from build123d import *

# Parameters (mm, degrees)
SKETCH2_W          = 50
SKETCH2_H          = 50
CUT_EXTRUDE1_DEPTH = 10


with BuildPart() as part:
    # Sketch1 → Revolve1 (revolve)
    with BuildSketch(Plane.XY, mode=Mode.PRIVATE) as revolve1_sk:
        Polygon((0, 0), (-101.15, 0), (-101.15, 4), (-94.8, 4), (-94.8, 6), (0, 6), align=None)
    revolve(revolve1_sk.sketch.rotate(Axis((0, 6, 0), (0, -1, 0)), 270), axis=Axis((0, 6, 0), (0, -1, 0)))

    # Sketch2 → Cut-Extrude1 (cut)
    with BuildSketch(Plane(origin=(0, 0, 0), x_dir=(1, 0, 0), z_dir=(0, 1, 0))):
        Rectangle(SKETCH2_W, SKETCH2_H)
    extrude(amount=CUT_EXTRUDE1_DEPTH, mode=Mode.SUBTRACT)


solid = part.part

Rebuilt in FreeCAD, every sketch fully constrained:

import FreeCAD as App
import Part
import Sketcher
from FreeCAD import Vector


def add_polygon(sketch, points):
    """Adds a closed chain of lines whose ends are joined by coincident constraints."""
    first, n = sketch.GeometryCount, len(points)
    for a, b in zip(points, points[1:] + points[:1]):
        sketch.addGeometry(Part.LineSegment(App.Vector(*a, 0), App.Vector(*b, 0)), False)
    for i in range(n):
        sketch.addConstraint(Sketcher.Constraint("Coincident", first + i, 2, first + (i + 1) % n, 1))

doc = App.newDocument("Part")
body = doc.addObject("PartDesign::Body", "Body")

# Sketch on XY plane
sketch1 = body.newObject("Sketcher::SketchObject", "Sketch")
sketch1.AttachmentSupport = (doc.getObject("XY_Plane"), [""])
sketch1.MapMode = "FlatFace"
add_polygon(sketch1, [(-101.2, 0), (0, 0), (0, 6), (-94.8, 6), (-94.8, 4), (-101.2, 4)])  # lines 0-5
sketch1.addConstraint(Sketcher.Constraint("Horizontal", 0))
sketch1.addConstraint(Sketcher.Constraint("Vertical", 1))
sketch1.addConstraint(Sketcher.Constraint("Horizontal", 2))
sketch1.addConstraint(Sketcher.Constraint("Vertical", 3))
sketch1.addConstraint(Sketcher.Constraint("Horizontal", 4))
sketch1.addConstraint(Sketcher.Constraint("Vertical", 5))
sketch1.addConstraint(Sketcher.Constraint("Coincident", 0, 2, -1, 1))
sketch1.addConstraint(Sketcher.Constraint("DistanceY", 1, 1, 1, 2, 6.0))
sketch1.addConstraint(Sketcher.Constraint("DistanceY", 3, 2, 3, 1, 2.0))
sketch1.addConstraint(Sketcher.Constraint("DistanceX", 2, 2, 2, 1, 94.8))
sketch1.addConstraint(Sketcher.Constraint("DistanceX", 0, 1, 0, 2, 101.15))
revolution = body.newObject("PartDesign::Revolution", "Revolution")
revolution.Profile = sketch1
revolution.ReferenceAxis = (sketch1, ["V_Axis"])
revolution.Angle = 360

# Sketch on XZ plane
sketch2 = body.newObject("Sketcher::SketchObject", "Sketch001")
sketch2.AttachmentSupport = (doc.getObject("XZ_Plane"), [""])
sketch2.MapMode = "FlatFace"
add_polygon(sketch2, [(-25, -25), (-25, 25), (25, 25), (25, -25)])  # lines 0-3
sketch2.addConstraint(Sketcher.Constraint("Vertical", 0))
sketch2.addConstraint(Sketcher.Constraint("Horizontal", 1))
sketch2.addConstraint(Sketcher.Constraint("Vertical", 2))
sketch2.addConstraint(Sketcher.Constraint("Horizontal", 3))
sketch2.addConstraint(Sketcher.Constraint("Symmetric", 0, 2, 2, 2, -1, 1))
sketch2.addConstraint(Sketcher.Constraint("Equal", 3, 0))
sketch2.addConstraint(Sketcher.Constraint("DistanceX", 1, 1, 1, 2, 50.0))
pocket1 = body.newObject("PartDesign::Pocket", "Pocket")
pocket1.Profile = sketch2
pocket1.Length = 10

doc.recompute()
